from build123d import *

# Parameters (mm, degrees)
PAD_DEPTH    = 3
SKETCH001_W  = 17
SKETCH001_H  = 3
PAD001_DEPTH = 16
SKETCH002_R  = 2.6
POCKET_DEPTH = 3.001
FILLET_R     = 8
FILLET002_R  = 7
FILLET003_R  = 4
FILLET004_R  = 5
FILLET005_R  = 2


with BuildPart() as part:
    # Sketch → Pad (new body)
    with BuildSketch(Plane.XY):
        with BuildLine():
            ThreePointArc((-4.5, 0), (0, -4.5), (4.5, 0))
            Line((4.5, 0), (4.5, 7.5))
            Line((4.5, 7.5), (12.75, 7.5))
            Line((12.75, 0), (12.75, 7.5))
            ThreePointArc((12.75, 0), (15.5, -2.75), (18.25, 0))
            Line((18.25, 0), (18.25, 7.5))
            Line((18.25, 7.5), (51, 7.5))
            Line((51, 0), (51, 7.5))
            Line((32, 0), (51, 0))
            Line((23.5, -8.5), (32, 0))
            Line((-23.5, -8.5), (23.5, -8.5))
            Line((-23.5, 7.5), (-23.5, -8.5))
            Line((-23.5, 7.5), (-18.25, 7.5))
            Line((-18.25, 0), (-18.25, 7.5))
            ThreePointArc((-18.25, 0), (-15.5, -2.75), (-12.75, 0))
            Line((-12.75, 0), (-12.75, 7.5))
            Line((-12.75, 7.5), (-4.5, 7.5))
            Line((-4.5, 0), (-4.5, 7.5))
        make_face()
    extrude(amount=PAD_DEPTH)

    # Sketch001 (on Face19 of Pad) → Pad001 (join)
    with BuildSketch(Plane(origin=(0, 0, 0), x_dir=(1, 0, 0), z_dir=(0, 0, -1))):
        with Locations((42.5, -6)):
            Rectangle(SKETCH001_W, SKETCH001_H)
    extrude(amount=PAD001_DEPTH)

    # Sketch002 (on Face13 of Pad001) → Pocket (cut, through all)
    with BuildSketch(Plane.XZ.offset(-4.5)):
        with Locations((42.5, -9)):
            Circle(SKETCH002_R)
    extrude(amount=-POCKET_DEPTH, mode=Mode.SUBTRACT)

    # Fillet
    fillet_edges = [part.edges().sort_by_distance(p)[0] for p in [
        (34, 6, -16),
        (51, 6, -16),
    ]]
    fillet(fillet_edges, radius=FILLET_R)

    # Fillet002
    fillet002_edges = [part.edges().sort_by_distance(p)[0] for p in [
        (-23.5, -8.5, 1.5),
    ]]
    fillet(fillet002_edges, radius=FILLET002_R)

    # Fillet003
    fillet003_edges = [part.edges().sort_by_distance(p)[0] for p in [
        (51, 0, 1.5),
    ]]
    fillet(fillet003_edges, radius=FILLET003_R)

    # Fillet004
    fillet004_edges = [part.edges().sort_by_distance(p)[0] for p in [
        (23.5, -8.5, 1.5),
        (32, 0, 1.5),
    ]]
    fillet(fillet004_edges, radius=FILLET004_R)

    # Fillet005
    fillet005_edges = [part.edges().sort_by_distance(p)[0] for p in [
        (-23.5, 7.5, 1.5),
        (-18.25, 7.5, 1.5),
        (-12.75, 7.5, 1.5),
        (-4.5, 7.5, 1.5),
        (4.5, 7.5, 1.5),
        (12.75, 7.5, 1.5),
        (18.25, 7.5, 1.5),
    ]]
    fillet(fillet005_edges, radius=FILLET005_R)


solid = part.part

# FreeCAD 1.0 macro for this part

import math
import FreeCAD as App
import Part
import Sketcher

V = App.Vector
Q = App.Units.Quantity


def edges_at(feature, points):
    """Names of the edges that pass closest to the given points."""
    edges = feature.Shape.Edges
    near = lambda p: min(range(len(edges)), key=lambda i: edges[i].distToShape(Part.Vertex(*p))[0])
    return sorted({f"Edge{near(p) + 1}" for p in points})

doc = App.newDocument("Part")
params = doc.addObject("Spreadsheet::Sheet", "Params")
for row, (alias, value) in enumerate([
    ("sketch1_radius", "4.5 mm"),
    ("sketch1_width", "47 mm"),
    ("sketch1_width2", "19 mm"),
    ("sketch1_height", "16 mm"),
    ("sketch1_radius2", "2.75 mm"),
    ("pad1_length", "3 mm"),
    ("sketch2_width", "17 mm"),
    ("sketch2_height", "3 mm"),
    ("pad2_length", "16 mm"),
    ("sketch3_diameter", "5.2 mm"),
    ("fillet_radius", "8 mm"),
    ("fillet2_radius", "7 mm"),
    ("fillet3_radius", "4 mm"),
    ("fillet4_radius", "5 mm"),
    ("fillet5_radius", "2 mm"),
], start=1):
    params.set(f"A{row}", alias)
    params.set(f"B{row}", "=" + value)
    params.setAlias(f"B{row}", alias)

body = doc.addObject("PartDesign::Body", "Body")

sketch1 = body.newObject("Sketcher::SketchObject", "Sketch")
sketch1.AttachmentSupport = (doc.getObject("XY_Plane"), [""])
sketch1.MapMode = "FlatFace"
sketch1.addGeometry(Part.ArcOfCircle(Part.Circle(V(0, 0, 0), V(0, 0, 1), 4.5), math.radians(180), math.radians(360)), False)
sketch1.addGeometry(Part.LineSegment(V(-4.5, 0, 0), V(-4.5, 7.5, 0)), False)
sketch1.addGeometry(Part.LineSegment(V(-4.5, 7.5, 0), V(-12.8, 7.5, 0)), False)
sketch1.addGeometry(Part.LineSegment(V(-12.8, 7.5, 0), V(-12.8, 0, 0)), False)
sketch1.addGeometry(Part.ArcOfCircle(Part.Circle(V(-15.5, 0, 0), V(0, 0, 1), 2.8), math.radians(180), math.radians(360)), False)
sketch1.addGeometry(Part.LineSegment(V(-18.2, 0, 0), V(-18.2, 7.5, 0)), False)
sketch1.addGeometry(Part.LineSegment(V(-18.2, 7.5, 0), V(-23.5, 7.5, 0)), False)
sketch1.addGeometry(Part.LineSegment(V(-23.5, 7.5, 0), V(-23.5, -8.5, 0)), False)
sketch1.addGeometry(Part.LineSegment(V(-23.5, -8.5, 0), V(23.5, -8.5, 0)), False)
sketch1.addGeometry(Part.LineSegment(V(23.5, -8.5, 0), V(32, 0, 0)), False)
sketch1.addGeometry(Part.LineSegment(V(32, 0, 0), V(51, 0, 0)), False)
sketch1.addGeometry(Part.LineSegment(V(51, 0, 0), V(51, 7.5, 0)), False)
sketch1.addGeometry(Part.LineSegment(V(51, 7.5, 0), V(18.2, 7.5, 0)), False)
sketch1.addGeometry(Part.LineSegment(V(18.2, 7.5, 0), V(18.2, 0, 0)), False)
sketch1.addGeometry(Part.ArcOfCircle(Part.Circle(V(15.5, 0, 0), V(0, 0, 1), 2.8), math.radians(180), math.radians(360)), False)
sketch1.addGeometry(Part.LineSegment(V(12.8, 0, 0), V(12.8, 7.5, 0)), False)
sketch1.addGeometry(Part.LineSegment(V(12.8, 7.5, 0), V(4.5, 7.5, 0)), False)
sketch1.addGeometry(Part.LineSegment(V(4.5, 7.5, 0), V(4.5, 0, 0)), False)
sketch1.addConstraint(Sketcher.Constraint("Tangent", 0, 1, 1, 1))
sketch1.addConstraint(Sketcher.Constraint("Coincident", 1, 2, 2, 1))
sketch1.addConstraint(Sketcher.Constraint("Coincident", 2, 2, 3, 1))
sketch1.addConstraint(Sketcher.Constraint("Tangent", 3, 2, 4, 2))
sketch1.addConstraint(Sketcher.Constraint("Tangent", 4, 1, 5, 1))
sketch1.addConstraint(Sketcher.Constraint("Coincident", 5, 2, 6, 1))
sketch1.addConstraint(Sketcher.Constraint("Coincident", 6, 2, 7, 1))
sketch1.addConstraint(Sketcher.Constraint("Coincident", 7, 2, 8, 1))
sketch1.addConstraint(Sketcher.Constraint("Coincident", 8, 2, 9, 1))
sketch1.addConstraint(Sketcher.Constraint("Coincident", 9, 2, 10, 1))
sketch1.addConstraint(Sketcher.Constraint("Coincident", 10, 2, 11, 1))
sketch1.addConstraint(Sketcher.Constraint("Coincident", 11, 2, 12, 1))
sketch1.addConstraint(Sketcher.Constraint("Coincident", 12, 2, 13, 1))
sketch1.addConstraint(Sketcher.Constraint("Tangent", 13, 2, 14, 2))
sketch1.addConstraint(Sketcher.Constraint("Tangent", 14, 1, 15, 1))
sketch1.addConstraint(Sketcher.Constraint("Coincident", 15, 2, 16, 1))
sketch1.addConstraint(Sketcher.Constraint("Coincident", 16, 2, 17, 1))
sketch1.addConstraint(Sketcher.Constraint("Tangent", 17, 2, 0, 2))
sketch1.addConstraint(Sketcher.Constraint("Vertical", 1))
sketch1.addConstraint(Sketcher.Constraint("Horizontal", 2))
sketch1.addConstraint(Sketcher.Constraint("Vertical", 3))
sketch1.addConstraint(Sketcher.Constraint("Vertical", 5))
sketch1.addConstraint(Sketcher.Constraint("Horizontal", 6))
sketch1.addConstraint(Sketcher.Constraint("Vertical", 7))
sketch1.addConstraint(Sketcher.Constraint("Horizontal", 8))
sketch1.addConstraint(Sketcher.Constraint("Horizontal", 10))
sketch1.addConstraint(Sketcher.Constraint("Vertical", 11))
sketch1.addConstraint(Sketcher.Constraint("Horizontal", 12))
sketch1.addConstraint(Sketcher.Constraint("Vertical", 13))
sketch1.addConstraint(Sketcher.Constraint("Vertical", 15))
sketch1.addConstraint(Sketcher.Constraint("Horizontal", 16))
sketch1.addConstraint(Sketcher.Constraint("Vertical", 17))
sketch1.addConstraint(Sketcher.Constraint("Coincident", 0, 3, -1, 1))
sketch1.addConstraint(Sketcher.Constraint("Equal", 4, 14))
sketch1.addConstraint(Sketcher.Constraint("Symmetric", 4, 3, 14, 3, -1, 1))
sketch1.addConstraint(Sketcher.Constraint("PointOnObject", 4, 3, -1))
sketch1.addConstraint(Sketcher.Constraint("PointOnObject", 9, 2, -1))
sketch1.addConstraint(Sketcher.Constraint("Horizontal", 2, 2, 5, 2))
sketch1.addConstraint(Sketcher.Constraint("Horizontal", 6, 2, 11, 2))
sketch1.addConstraint(Sketcher.Constraint("Horizontal", 12, 2, 15, 2))
sketch1.addConstraint(Sketcher.Constraint("Radius", 0, 4.5))
sketch1.addConstraint(Sketcher.Constraint("DistanceX", 8, 1, 8, 2, 47.0))
sketch1.addConstraint(Sketcher.Constraint("DistanceX", 10, 1, 10, 2, 19.0))
sketch1.addConstraint(Sketcher.Constraint("DistanceY", 7, 2, 7, 1, 16.0))
sketch1.addConstraint(Sketcher.Constraint("Angle", 9, Q("45 deg")))
sketch1.addConstraint(Sketcher.Constraint("Radius", 4, 2.75))
sketch1.addConstraint(Sketcher.Constraint("DistanceY", 1, 1, 1, 2, 7.5))
sketch1.addConstraint(Sketcher.Constraint("DistanceX", -1, 1, 9, 2, 32.0))
sketch1.addConstraint(Sketcher.Constraint("DistanceX", 4, 3, 14, 3, 31.0))
sketch1.setExpression("Constraints[40]", "Params.sketch1_radius")
sketch1.setExpression("Constraints[41]", "Params.sketch1_width")
sketch1.setExpression("Constraints[42]", "Params.sketch1_width2")
sketch1.setExpression("Constraints[43]", "Params.sketch1_height")
sketch1.setExpression("Constraints[45]", "Params.sketch1_radius2")
pad1 = body.newObject("PartDesign::Pad", "Pad")
pad1.Profile = sketch1
pad1.setExpression("Length", "Params.pad1_length")

sketch2 = body.newObject("Sketcher::SketchObject", "Sketch001")
sketch2.AttachmentSupport = (doc.getObject("XY_Plane"), [""])
sketch2.MapMode = "FlatFace"
sketch2.addGeometry(Part.LineSegment(V(34, 4.5, 0), V(34, 7.5, 0)), False)
sketch2.addGeometry(Part.LineSegment(V(34, 7.5, 0), V(51, 7.5, 0)), False)
sketch2.addGeometry(Part.LineSegment(V(51, 7.5, 0), V(51, 4.5, 0)), False)
sketch2.addGeometry(Part.LineSegment(V(51, 4.5, 0), V(34, 4.5, 0)), False)
sketch2.addConstraint(Sketcher.Constraint("Coincident", 0, 2, 1, 1))
sketch2.addConstraint(Sketcher.Constraint("Coincident", 1, 2, 2, 1))
sketch2.addConstraint(Sketcher.Constraint("Coincident", 2, 2, 3, 1))
sketch2.addConstraint(Sketcher.Constraint("Coincident", 3, 2, 0, 1))
sketch2.addConstraint(Sketcher.Constraint("Vertical", 0))
sketch2.addConstraint(Sketcher.Constraint("Horizontal", 1))
sketch2.addConstraint(Sketcher.Constraint("Vertical", 2))
sketch2.addConstraint(Sketcher.Constraint("Horizontal", 3))
sketch2.addConstraint(Sketcher.Constraint("DistanceX", 1, 1, 1, 2, 17.0))
sketch2.addConstraint(Sketcher.Constraint("DistanceY", 0, 1, 0, 2, 3.0))
sketch2.addConstraint(Sketcher.Constraint("DistanceX", -1, 1, 0, 2, 34.0))
sketch2.addConstraint(Sketcher.Constraint("DistanceY", -1, 1, 0, 2, 7.5))
sketch2.setExpression("Constraints[8]", "Params.sketch2_width")
sketch2.setExpression("Constraints[9]", "Params.sketch2_height")
pad2 = body.newObject("PartDesign::Pad", "Pad001")
pad2.Profile = sketch2
pad2.setExpression("Length", "Params.pad2_length")
pad2.Reversed = True

sketch3 = body.newObject("Sketcher::SketchObject", "Sketch002")
sketch3.AttachmentSupport = (doc.getObject("XZ_Plane"), [""])
sketch3.MapMode = "FlatFace"
sketch3.AttachmentOffset = App.Placement(V(0, 0, -4.5), App.Rotation())
sketch3.addGeometry(Part.Circle(V(42.5, -9, 0), V(0, 0, 1), 2.6), False)
sketch3.addConstraint(Sketcher.Constraint("Diameter", 0, 5.2))
sketch3.addConstraint(Sketcher.Constraint("DistanceY", 0, 3, -1, 1, 9.0))
sketch3.addConstraint(Sketcher.Constraint("DistanceX", -1, 1, 0, 3, 42.5))
sketch3.setExpression("Constraints[0]", "Params.sketch3_diameter")
pocket1 = body.newObject("PartDesign::Pocket", "Pocket")
pocket1.Profile = sketch3
pocket1.Type = "ThroughAll"
doc.recompute()

fillet = body.newObject("PartDesign::Fillet", "Fillet")
fillet.Base = (pocket1, edges_at(pocket1, [(34, 6, -16), (51, 6, -16)]))
fillet.setExpression("Radius", "Params.fillet_radius")
doc.recompute()

fillet2 = body.newObject("PartDesign::Fillet", "Fillet001")
fillet2.Base = (fillet, edges_at(fillet, [(-23.5, -8.5, 1.5)]))
fillet2.setExpression("Radius", "Params.fillet2_radius")
doc.recompute()

fillet3 = body.newObject("PartDesign::Fillet", "Fillet002")
fillet3.Base = (fillet2, edges_at(fillet2, [(51, 0, 1.5)]))
fillet3.setExpression("Radius", "Params.fillet3_radius")
doc.recompute()

fillet4 = body.newObject("PartDesign::Fillet", "Fillet003")
fillet4.Base = (fillet3, edges_at(fillet3, [(23.5, -8.5, 1.5), (32, 0, 1.5)]))
fillet4.setExpression("Radius", "Params.fillet4_radius")
doc.recompute()

fillet5 = body.newObject("PartDesign::Fillet", "Fillet004")
fillet5.Base = (fillet4, edges_at(fillet4, [
    (-23.5, 7.5, 1.5),
    (-18.25, 7.5, 1.5),
    (-12.75, 7.5, 1.5),
    (-4.5, 7.5, 1.5),
    (4.5, 7.5, 1.5),
    (12.75, 7.5, 1.5),
    (18.25, 7.5, 1.5),
]))
fillet5.setExpression("Radius", "Params.fillet5_radius")

doc.recompute()
